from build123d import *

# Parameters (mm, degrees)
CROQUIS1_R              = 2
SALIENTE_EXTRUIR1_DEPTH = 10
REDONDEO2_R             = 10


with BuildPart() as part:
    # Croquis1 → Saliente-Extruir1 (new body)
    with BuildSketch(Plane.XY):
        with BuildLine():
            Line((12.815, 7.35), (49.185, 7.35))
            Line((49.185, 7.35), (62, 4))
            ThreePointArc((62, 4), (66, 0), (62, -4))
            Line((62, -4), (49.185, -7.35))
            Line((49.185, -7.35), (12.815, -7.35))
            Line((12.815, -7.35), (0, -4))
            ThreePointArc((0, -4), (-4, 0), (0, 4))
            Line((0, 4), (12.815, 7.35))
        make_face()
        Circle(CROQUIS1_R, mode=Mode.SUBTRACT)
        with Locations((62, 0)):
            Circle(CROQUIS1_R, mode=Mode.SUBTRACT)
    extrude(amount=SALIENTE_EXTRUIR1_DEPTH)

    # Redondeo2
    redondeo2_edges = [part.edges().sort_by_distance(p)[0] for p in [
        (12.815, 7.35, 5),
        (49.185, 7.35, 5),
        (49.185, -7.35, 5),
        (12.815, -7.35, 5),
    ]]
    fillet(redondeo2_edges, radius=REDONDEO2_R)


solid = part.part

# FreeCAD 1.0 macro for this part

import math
import FreeCAD as App
import Part
import Sketcher
from FreeCAD import Vector
Q = App.Units.Quantity


def edges_at(feature, points):
    """Names of the edges that pass closest to the given points."""
    edges = feature.Shape.Edges
    near = lambda p: min(range(len(edges)), key=lambda i: edges[i].distToShape(Part.Vertex(*p))[0])
    return sorted({f"Edge{near(p) + 1}" for p in points})

doc = App.newDocument("Part")
body = doc.addObject("PartDesign::Body", "Body")

sketch1 = doc.addObject("Sketcher::SketchObject", "Sketch")
body.addObject(sketch1)
sketch1.AttachmentSupport = (doc.XY_Plane, [""])
sketch1.MapMode = "FlatFace"
sketch1.addGeometry(Part.LineSegment(Vector(49.2, 7.3, 0), Vector(12.8, 7.3, 0)), False)
sketch1.addGeometry(Part.LineSegment(Vector(12.8, 7.3, 0), Vector(0, 4, 0)), False)
sketch1.addGeometry(Part.ArcOfCircle(Part.Circle(Vector(0, 0, 0), Vector(0, 0, 1), 4), math.radians(90), math.radians(270)), False)
sketch1.addGeometry(Part.LineSegment(Vector(0, -4, 0), Vector(12.8, -7.3, 0)), False)
sketch1.addGeometry(Part.LineSegment(Vector(12.8, -7.3, 0), Vector(49.2, -7.3, 0)), False)
sketch1.addGeometry(Part.LineSegment(Vector(49.2, -7.3, 0), Vector(62, -4, 0)), False)
sketch1.addGeometry(Part.ArcOfCircle(Part.Circle(Vector(62, 0, 0), Vector(0, 0, 1), 4), math.radians(-90), math.radians(90)), False)
sketch1.addGeometry(Part.LineSegment(Vector(62, 4, 0), Vector(49.2, 7.3, 0)), False)
sketch1.addGeometry(Part.Circle(Vector(62, 0, 0), Vector(0, 0, 1), 2), False)
sketch1.addGeometry(Part.Circle(Vector(0, 0, 0), Vector(0, 0, 1), 2), False)
sketch1.addConstraint(Sketcher.Constraint("Coincident", 0, 2, 1, 1))
sketch1.addConstraint(Sketcher.Constraint("Coincident", 1, 2, 2, 1))
sketch1.addConstraint(Sketcher.Constraint("Coincident", 2, 2, 3, 1))
sketch1.addConstraint(Sketcher.Constraint("Coincident", 3, 2, 4, 1))
sketch1.addConstraint(Sketcher.Constraint("Coincident", 4, 2, 5, 1))
sketch1.addConstraint(Sketcher.Constraint("Coincident", 5, 2, 6, 1))
sketch1.addConstraint(Sketcher.Constraint("Coincident", 6, 2, 7, 1))
sketch1.addConstraint(Sketcher.Constraint("Coincident", 7, 2, 0, 1))
sketch1.addConstraint(Sketcher.Constraint("Horizontal", 0))
sketch1.addConstraint(Sketcher.Constraint("Horizontal", 4))
sketch1.addConstraint(Sketcher.Constraint("Coincident", 2, 3, -1, 1))
sketch1.addConstraint(Sketcher.Constraint("Coincident", 9, 3, -1, 1))
sketch1.addConstraint(Sketcher.Constraint("Coincident", 8, 3, 6, 3))
sketch1.addConstraint(Sketcher.Constraint("Equal", 2, 6))
sketch1.addConstraint(Sketcher.Constraint("Equal", 8, 9))
sketch1.addConstraint(Sketcher.Constraint("Symmetric", 0, 2, 3, 2, -1))
sketch1.addConstraint(Sketcher.Constraint("Symmetric", 5, 2, 6, 2, -1))
sketch1.addConstraint(Sketcher.Constraint("PointOnObject", 1, 2, -2))
sketch1.addConstraint(Sketcher.Constraint("PointOnObject", 2, 2, -2))
sketch1.addConstraint(Sketcher.Constraint("Parallel", 1, 5))
sketch1.addConstraint(Sketcher.Constraint("Parallel", 3, 7))
sketch1.addConstraint(Sketcher.Constraint("Vertical", 8, 3, 5, 2))
sketch1.addConstraint(Sketcher.Constraint("Diameter", 8, Q("4 mm")))
sketch1.addConstraint(Sketcher.Constraint("Radius", 2, Q("4 mm")))
sketch1.addConstraint(Sketcher.Constraint("DistanceX", -1, 1, 6, 3, Q("62 mm")))
sketch1.addConstraint(Sketcher.Constraint("DistanceX", 0, 2, 0, 1, Q("36.37 mm")))
sketch1.addConstraint(Sketcher.Constraint("Angle", 1, Q("-165.350009 deg")))
pad1 = doc.addObject("PartDesign::Pad", "Pad")
body.addObject(pad1)
pad1.Profile = sketch1
pad1.Length = 10
doc.recompute()

fillet = doc.addObject("PartDesign::Fillet", "Fillet")
body.addObject(fillet)
fillet.Base = (pad1, edges_at(pad1, [
    (12.815, 7.35, 5),
    (49.185, 7.35, 5),
    (49.185, -7.35, 5),
    (12.815, -7.35, 5),
]))
fillet.Radius = 10

doc.recompute()
